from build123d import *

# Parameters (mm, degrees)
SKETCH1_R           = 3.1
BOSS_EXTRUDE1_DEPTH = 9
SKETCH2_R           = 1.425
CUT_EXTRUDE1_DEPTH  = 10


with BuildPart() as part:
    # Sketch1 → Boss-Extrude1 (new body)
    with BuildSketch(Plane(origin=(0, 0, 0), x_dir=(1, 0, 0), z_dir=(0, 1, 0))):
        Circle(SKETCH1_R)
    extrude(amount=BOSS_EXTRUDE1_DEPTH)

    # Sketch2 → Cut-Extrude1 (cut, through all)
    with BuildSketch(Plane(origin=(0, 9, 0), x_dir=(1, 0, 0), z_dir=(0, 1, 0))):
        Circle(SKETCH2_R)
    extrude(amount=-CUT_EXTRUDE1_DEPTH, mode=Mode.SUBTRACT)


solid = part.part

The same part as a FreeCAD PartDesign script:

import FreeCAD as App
import Part
import Sketcher
Q = App.Units.Quantity

doc = App.newDocument("Part")
params = doc.addObject("Spreadsheet::Sheet", "Params")
for row, (alias, value) in enumerate([
    ("sketch1_diameter", "6.2 mm"),
    ("pad1_length", "9 mm"),
    ("sketch2_diameter", "2.85 mm"),
], start=1):
    params.set(f"A{row}", alias)
    params.set(f"B{row}", "=" + value)
    params.setAlias(f"B{row}", alias)

body = doc.addObject("PartDesign::Body", "Body")

# Sketch on XZ plane
sketch1 = body.newObject("Sketcher::SketchObject", "Sketch")
sketch1.AttachmentSupport = (doc.getObject("XZ_Plane"), [""])
sketch1.MapMode = "FlatFace"
sketch1.addGeometry(Part.Circle(App.Vector(0, 0, 0), App.Vector(0, 0, 1), 3.1), False)
sketch1.addConstraint(Sketcher.Constraint("Coincident", 0, 3, -1, 1))
sketch1.addConstraint(Sketcher.Constraint("Diameter", 0, Q("6.2 mm")))
sketch1.setExpression("Constraints[1]", "Params.sketch1_diameter")
pad1 = body.newObject("PartDesign::Pad", "Pad")
pad1.Profile = sketch1
pad1.setExpression("Length", "Params.pad1_length")
pad1.Reversed = True

# Sketch on XZ plane
sketch2 = body.newObject("Sketcher::SketchObject", "Sketch001")
sketch2.AttachmentSupport = (doc.getObject("XZ_Plane"), [""])
sketch2.MapMode = "FlatFace"
sketch2.AttachmentOffset = App.Placement(App.Vector(0, 0, -9), App.Rotation())
sketch2.addGeometry(Part.Circle(App.Vector(0, 0, 0), App.Vector(0, 0, 1), 1.425), False)
sketch2.addConstraint(Sketcher.Constraint("Coincident", 0, 3, -1, 1))
sketch2.addConstraint(Sketcher.Constraint("Diameter", 0, Q("2.85 mm")))
sketch2.setExpression("Constraints[1]", "Params.sketch2_diameter")
pocket1 = body.newObject("PartDesign::Pocket", "Pocket")
pocket1.Profile = sketch2
pocket1.Type = "ThroughAll"
pocket1.Reversed = True

doc.recompute()
